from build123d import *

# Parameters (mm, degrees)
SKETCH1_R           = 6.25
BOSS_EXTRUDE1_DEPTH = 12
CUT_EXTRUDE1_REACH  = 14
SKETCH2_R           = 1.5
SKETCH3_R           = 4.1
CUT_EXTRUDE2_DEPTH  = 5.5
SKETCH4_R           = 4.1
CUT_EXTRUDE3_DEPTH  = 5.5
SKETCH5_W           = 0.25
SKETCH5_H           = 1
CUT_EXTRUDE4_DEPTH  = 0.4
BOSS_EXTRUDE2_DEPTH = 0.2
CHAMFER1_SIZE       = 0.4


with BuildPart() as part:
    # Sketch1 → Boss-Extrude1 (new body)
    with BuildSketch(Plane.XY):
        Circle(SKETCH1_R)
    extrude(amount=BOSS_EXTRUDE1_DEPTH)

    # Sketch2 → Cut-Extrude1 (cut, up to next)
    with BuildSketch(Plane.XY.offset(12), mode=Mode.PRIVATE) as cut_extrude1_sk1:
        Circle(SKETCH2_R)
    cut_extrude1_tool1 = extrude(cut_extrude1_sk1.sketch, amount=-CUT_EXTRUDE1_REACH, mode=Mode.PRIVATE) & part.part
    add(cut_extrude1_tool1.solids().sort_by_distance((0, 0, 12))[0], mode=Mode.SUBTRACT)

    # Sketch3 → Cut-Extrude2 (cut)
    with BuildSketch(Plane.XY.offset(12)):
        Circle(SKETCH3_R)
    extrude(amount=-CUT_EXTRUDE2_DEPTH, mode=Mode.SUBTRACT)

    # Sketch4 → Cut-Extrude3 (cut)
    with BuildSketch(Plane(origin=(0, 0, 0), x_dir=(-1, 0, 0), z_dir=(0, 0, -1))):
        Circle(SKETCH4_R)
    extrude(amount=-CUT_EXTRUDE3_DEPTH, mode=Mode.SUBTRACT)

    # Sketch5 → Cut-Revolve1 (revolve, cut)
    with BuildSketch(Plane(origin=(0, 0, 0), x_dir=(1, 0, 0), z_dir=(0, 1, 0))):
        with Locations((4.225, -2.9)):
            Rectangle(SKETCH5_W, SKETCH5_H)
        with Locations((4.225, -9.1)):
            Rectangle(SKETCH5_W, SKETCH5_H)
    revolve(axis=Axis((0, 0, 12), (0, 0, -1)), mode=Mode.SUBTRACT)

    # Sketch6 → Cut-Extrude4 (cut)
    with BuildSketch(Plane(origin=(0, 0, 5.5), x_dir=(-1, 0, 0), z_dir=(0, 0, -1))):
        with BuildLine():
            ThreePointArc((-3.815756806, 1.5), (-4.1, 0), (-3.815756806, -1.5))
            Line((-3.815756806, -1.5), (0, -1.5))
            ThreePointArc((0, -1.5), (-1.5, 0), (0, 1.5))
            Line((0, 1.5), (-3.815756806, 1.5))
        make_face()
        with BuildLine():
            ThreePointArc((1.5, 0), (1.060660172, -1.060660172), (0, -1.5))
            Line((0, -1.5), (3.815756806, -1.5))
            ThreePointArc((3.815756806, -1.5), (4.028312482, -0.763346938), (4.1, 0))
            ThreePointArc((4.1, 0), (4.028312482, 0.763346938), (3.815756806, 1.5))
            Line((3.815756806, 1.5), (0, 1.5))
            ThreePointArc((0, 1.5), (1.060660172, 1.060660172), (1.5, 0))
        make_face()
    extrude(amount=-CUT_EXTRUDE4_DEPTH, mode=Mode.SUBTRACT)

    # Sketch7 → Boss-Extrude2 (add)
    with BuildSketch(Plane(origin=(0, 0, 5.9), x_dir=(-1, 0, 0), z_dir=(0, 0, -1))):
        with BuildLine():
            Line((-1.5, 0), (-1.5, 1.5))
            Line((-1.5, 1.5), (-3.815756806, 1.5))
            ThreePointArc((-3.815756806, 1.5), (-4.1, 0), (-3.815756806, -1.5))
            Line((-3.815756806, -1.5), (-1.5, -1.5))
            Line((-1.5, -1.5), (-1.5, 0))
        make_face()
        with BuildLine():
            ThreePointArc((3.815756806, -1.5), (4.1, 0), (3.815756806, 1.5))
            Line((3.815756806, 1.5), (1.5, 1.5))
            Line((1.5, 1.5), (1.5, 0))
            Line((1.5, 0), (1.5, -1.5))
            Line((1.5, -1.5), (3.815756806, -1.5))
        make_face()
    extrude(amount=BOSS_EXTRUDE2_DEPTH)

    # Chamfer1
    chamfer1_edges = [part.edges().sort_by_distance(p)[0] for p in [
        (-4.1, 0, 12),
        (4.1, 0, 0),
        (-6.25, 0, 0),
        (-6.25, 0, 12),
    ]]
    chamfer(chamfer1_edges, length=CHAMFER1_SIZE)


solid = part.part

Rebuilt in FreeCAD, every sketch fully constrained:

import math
import FreeCAD as App
import Part
import Sketcher
from FreeCAD import Vector
Q = App.Units.Quantity


def edges_at(feature, points):
    """Names of the edges that pass closest to the given points."""
    edges = feature.Shape.Edges
    near = lambda p: min(range(len(edges)), key=lambda i: edges[i].distToShape(Part.Vertex(*p))[0])
    return sorted({f"Edge{near(p) + 1}" for p in points})


def add_polygon(sketch, points):
    """Adds a closed chain of lines whose ends are joined by coincident constraints."""
    first, n = sketch.GeometryCount, len(points)
    for a, b in zip(points, points[1:] + points[:1]):
        sketch.addGeometry(Part.LineSegment(App.Vector(*a, 0), App.Vector(*b, 0)), False)
    for i in range(n):
        sketch.addConstraint(Sketcher.Constraint("Coincident", first + i, 2, first + (i + 1) % n, 1))

doc = App.newDocument("Part")
body = doc.addObject("PartDesign::Body", "Body")

# Sketch on XY plane
sketch1 = body.newObject("Sketcher::SketchObject", "Sketch")
sketch1.AttachmentSupport = (doc.getObject("XY_Plane"), [""])
sketch1.MapMode = "FlatFace"
sketch1.addGeometry(Part.Circle(Vector(0, 0, 0), Vector(0, 0, 1), 6.25), False)
sketch1.addConstraint(Sketcher.Constraint("Coincident", 0, 3, -1, 1))
sketch1.addConstraint(Sketcher.Constraint("Diameter", 0, Q("12.5 mm")))
pad1 = body.newObject("PartDesign::Pad", "Pad")
pad1.Profile = sketch1
pad1.Length = 12

# Sketch on XY plane
sketch2 = body.newObject("Sketcher::SketchObject", "Sketch001")
sketch2.AttachmentSupport = (doc.getObject("XY_Plane"), [""])
sketch2.MapMode = "FlatFace"
sketch2.AttachmentOffset = App.Placement(Vector(0, 0, 12), App.Rotation())
sketch2.addGeometry(Part.Circle(Vector(0, 0, 0), Vector(0, 0, 1), 1.5), False)
sketch2.addConstraint(Sketcher.Constraint("Coincident", 0, 3, -1, 1))
sketch2.addConstraint(Sketcher.Constraint("Diameter", 0, Q("3 mm")))
pocket1 = body.newObject("PartDesign::Pocket", "Pocket")
pocket1.Profile = sketch2
pocket1.Type = "UpToFirst"

# Sketch on XY plane
sketch3 = body.newObject("Sketcher::SketchObject", "Sketch002")
sketch3.AttachmentSupport = (doc.getObject("XY_Plane"), [""])
sketch3.MapMode = "FlatFace"
sketch3.AttachmentOffset = App.Placement(Vector(0, 0, 12), App.Rotation())
sketch3.addGeometry(Part.Circle(Vector(0, 0, 0), Vector(0, 0, 1), 4.1), False)
sketch3.addConstraint(Sketcher.Constraint("Coincident", 0, 3, -1, 1))
sketch3.addConstraint(Sketcher.Constraint("Diameter", 0, Q("8.2 mm")))
pocket2 = body.newObject("PartDesign::Pocket", "Pocket001")
pocket2.Profile = sketch3
pocket2.Length = 5.5

# Sketch on XY plane
sketch4 = body.newObject("Sketcher::SketchObject", "Sketch003")
sketch4.AttachmentSupport = (doc.getObject("XY_Plane"), [""])
sketch4.MapMode = "FlatFace"
sketch4.addGeometry(Part.Circle(Vector(0, 0, 0), Vector(0, 0, 1), 4.1), False)
sketch4.addConstraint(Sketcher.Constraint("Coincident", 0, 3, -1, 1))
sketch4.addConstraint(Sketcher.Constraint("Diameter", 0, Q("8.2 mm")))
pocket3 = body.newObject("PartDesign::Pocket", "Pocket002")
pocket3.Profile = sketch4
pocket3.Length = 5.5
pocket3.Reversed = True

# Sketch on XZ plane
sketch5 = body.newObject("Sketcher::SketchObject", "Sketch004")
sketch5.AttachmentSupport = (doc.getObject("XZ_Plane"), [""])
sketch5.MapMode = "FlatFace"
add_polygon(sketch5, [(4.1, 2.4), (4.1, 3.4), (4.35, 3.4), (4.35, 2.4)])  # lines 0-3
add_polygon(sketch5, [(4.1, 8.6), (4.1, 9.6), (4.35, 9.6), (4.35, 8.6)])  # lines 4-7
sketch5.addConstraint(Sketcher.Constraint("Vertical", 0))
sketch5.addConstraint(Sketcher.Constraint("Horizontal", 1))
sketch5.addConstraint(Sketcher.Constraint("Vertical", 2))
sketch5.addConstraint(Sketcher.Constraint("Horizontal", 3))
sketch5.addConstraint(Sketcher.Constraint("Vertical", 4))
sketch5.addConstraint(Sketcher.Constraint("Horizontal", 5))
sketch5.addConstraint(Sketcher.Constraint("Vertical", 6))
sketch5.addConstraint(Sketcher.Constraint("Horizontal", 7))
sketch5.addConstraint(Sketcher.Constraint("Vertical", 3, 2, 4, 2))
sketch5.addConstraint(Sketcher.Constraint("Vertical", 2, 2, 5, 2))
sketch5.addConstraint(Sketcher.Constraint("Equal", 2, 4))
sketch5.addConstraint(Sketcher.Constraint("DistanceY", 0, 1, 0, 2, Q("1 mm")))
sketch5.addConstraint(Sketcher.Constraint("DistanceX", 1, 1, 1, 2, Q("0.25 mm")))
sketch5.addConstraint(Sketcher.Constraint("DistanceX", -1, 1, 0, 2, Q("4.1 mm")))
sketch5.addConstraint(Sketcher.Constraint("DistanceY", -1, 1, 0, 2, Q("3.4 mm")))
sketch5.addConstraint(Sketcher.Constraint("DistanceY", -1, 1, 4, 2, Q("9.6 mm")))
groove = body.newObject("PartDesign::Groove", "Groove")
groove.Profile = sketch5
groove.ReferenceAxis = (sketch5, ["V_Axis"])
groove.Angle = 360

# Sketch on XY plane
sketch6 = body.newObject("Sketcher::SketchObject", "Sketch005")
sketch6.AttachmentSupport = (doc.getObject("XY_Plane"), [""])
sketch6.MapMode = "FlatFace"
sketch6.AttachmentOffset = App.Placement(Vector(0, 0, 5.5), App.Rotation())
sketch6.addGeometry(Part.ArcOfCircle(Part.Circle(Vector(0, 0, 0), Vector(0, 0, 1), 4.1), math.radians(-21.460128), math.radians(21.460128)), False)
sketch6.addGeometry(Part.LineSegment(Vector(3.815757, -1.5, 0), Vector(0, -1.5, 0)), False)
sketch6.addGeometry(Part.ArcOfCircle(Part.Circle(Vector(0, 0, 0), Vector(0, 0, 1), 1.5), math.radians(-90), math.radians(90)), False)
sketch6.addGeometry(Part.LineSegment(Vector(0, 1.5, 0), Vector(3.815757, 1.5, 0)), False)
sketch6.addGeometry(Part.ArcOfCircle(Part.Circle(Vector(0, 0, 0), Vector(0, 0, 1), 1.5), math.radians(180), math.radians(270)), False)
sketch6.addGeometry(Part.LineSegment(Vector(0, -1.5, 0), Vector(-3.815757, -1.5, 0)), False)
sketch6.addGeometry(Part.ArcOfCircle(Part.Circle(Vector(0, 0, 0), Vector(0, 0, 1), 4.1), math.radians(180), math.radians(201.460128)), False)
sketch6.addGeometry(Part.ArcOfCircle(Part.Circle(Vector(0, 0, 0), Vector(0, 0, 1), 4.1), math.radians(158.539872), math.radians(180)), False)
sketch6.addGeometry(Part.LineSegment(Vector(-3.815757, 1.5, 0), Vector(0, 1.5, 0)), False)
sketch6.addGeometry(Part.ArcOfCircle(Part.Circle(Vector(0, 0, 0), Vector(0, 0, 1), 1.5), math.radians(90), math.radians(180)), False)
sketch6.addConstraint(Sketcher.Constraint("Coincident", 0, 1, 1, 1))
sketch6.addConstraint(Sketcher.Constraint("Tangent", 1, 2, 2, 1))
sketch6.addConstraint(Sketcher.Constraint("Tangent", 2, 2, 3, 1))
sketch6.addConstraint(Sketcher.Constraint("Coincident", 3, 2, 0, 2))
sketch6.addConstraint(Sketcher.Constraint("Tangent", 4, 2, 5, 1))
sketch6.addConstraint(Sketcher.Constraint("Coincident", 5, 2, 6, 2))
sketch6.addConstraint(Sketcher.Constraint("Tangent", 6, 1, 7, 2))
sketch6.addConstraint(Sketcher.Constraint("Coincident", 7, 1, 8, 1))
sketch6.addConstraint(Sketcher.Constraint("Tangent", 8, 2, 9, 1))
sketch6.addConstraint(Sketcher.Constraint("Tangent", 9, 2, 4, 1))
sketch6.addConstraint(Sketcher.Constraint("Horizontal", 1))
sketch6.addConstraint(Sketcher.Constraint("Horizontal", 3))
sketch6.addConstraint(Sketcher.Constraint("Horizontal", 5))
sketch6.addConstraint(Sketcher.Constraint("Horizontal", 8))
sketch6.addConstraint(Sketcher.Constraint("Coincident", 0, 3, -1, 1))
sketch6.addConstraint(Sketcher.Constraint("Coincident", 2, 3, -1, 1))
sketch6.addConstraint(Sketcher.Constraint("Coincident", 4, 3, -1, 1))
sketch6.addConstraint(Sketcher.Constraint("Coincident", 6, 3, -1, 1))
sketch6.addConstraint(Sketcher.Constraint("Coincident", 8, 2, 2, 2))
sketch6.addConstraint(Sketcher.Constraint("Equal", 0, 6))
sketch6.addConstraint(Sketcher.Constraint("Equal", 6, 7))
sketch6.addConstraint(Sketcher.Constraint("PointOnObject", 6, 1, -1))
sketch6.addConstraint(Sketcher.Constraint("PointOnObject", 9, 2, -1))
sketch6.addConstraint(Sketcher.Constraint("Radius", 0, Q("4.1 mm")))
sketch6.addConstraint(Sketcher.Constraint("Radius", 2, Q("1.5 mm")))
pocket4 = body.newObject("PartDesign::Pocket", "Pocket003")
pocket4.Profile = sketch6
pocket4.Length = 0.4
pocket4.Reversed = True

# Sketch on XY plane
sketch7 = body.newObject("Sketcher::SketchObject", "Sketch006")
sketch7.AttachmentSupport = (doc.getObject("XY_Plane"), [""])
sketch7.MapMode = "FlatFace"
sketch7.AttachmentOffset = App.Placement(Vector(0, 0, 5.9), App.Rotation())
sketch7.addGeometry(Part.LineSegment(Vector(1.5, 1.5, 0), Vector(3.815757, 1.5, 0)), False)
sketch7.addGeometry(Part.ArcOfCircle(Part.Circle(Vector(0, 0, 0), Vector(0, 0, 1), 4.1), math.radians(-21.460128), math.radians(21.460128)), False)
sketch7.addGeometry(Part.LineSegment(Vector(3.815757, -1.5, 0), Vector(1.5, -1.5, 0)), False)
sketch7.addGeometry(Part.LineSegment(Vector(1.5, -1.5, 0), Vector(1.5, 1.5, 0)), False)
sketch7.addGeometry(Part.ArcOfCircle(Part.Circle(Vector(0, 0, 0), Vector(0, 0, 1), 4.1), math.radians(158.539872), math.radians(201.460128)), False)
sketch7.addGeometry(Part.LineSegment(Vector(-3.815757, 1.5, 0), Vector(-1.5, 1.5, 0)), False)
sketch7.addGeometry(Part.LineSegment(Vector(-1.5, 1.5, 0), Vector(-1.5, -1.5, 0)), False)
sketch7.addGeometry(Part.LineSegment(Vector(-1.5, -1.5, 0), Vector(-3.815757, -1.5, 0)), False)
sketch7.addConstraint(Sketcher.Constraint("Coincident", 0, 2, 1, 2))
sketch7.addConstraint(Sketcher.Constraint("Coincident", 1, 1, 2, 1))
sketch7.addConstraint(Sketcher.Constraint("Coincident", 2, 2, 3, 1))
sketch7.addConstraint(Sketcher.Constraint("Coincident", 3, 2, 0, 1))
sketch7.addConstraint(Sketcher.Constraint("Coincident", 4, 1, 5, 1))
sketch7.addConstraint(Sketcher.Constraint("Coincident", 5, 2, 6, 1))
sketch7.addConstraint(Sketcher.Constraint("Coincident", 6, 2, 7, 1))
sketch7.addConstraint(Sketcher.Constraint("Coincident", 7, 2, 4, 2))
sketch7.addConstraint(Sketcher.Constraint("Horizontal", 0))
sketch7.addConstraint(Sketcher.Constraint("Horizontal", 2))
sketch7.addConstraint(Sketcher.Constraint("Vertical", 3))
sketch7.addConstraint(Sketcher.Constraint("Horizontal", 5))
sketch7.addConstraint(Sketcher.Constraint("Vertical", 6))
sketch7.addConstraint(Sketcher.Constraint("Horizontal", 7))
sketch7.addConstraint(Sketcher.Constraint("Coincident", 1, 3, -1, 1))
sketch7.addConstraint(Sketcher.Constraint("Coincident", 4, 3, -1, 1))
sketch7.addConstraint(Sketcher.Constraint("Equal", 1, 4))
sketch7.addConstraint(Sketcher.Constraint("Symmetric", 2, 2, 5, 2, -1, 1))
sketch7.addConstraint(Sketcher.Constraint("Horizontal", 3, 2, 4, 1))
sketch7.addConstraint(Sketcher.Constraint("Horizontal", 2, 2, 6, 2))
sketch7.addConstraint(Sketcher.Constraint("Radius", 1, Q("4.1 mm")))
sketch7.addConstraint(Sketcher.Constraint("DistanceY", 3, 1, 3, 2, Q("3 mm")))
sketch7.addConstraint(Sketcher.Constraint("DistanceX", 5, 2, 3, 2, Q("3 mm")))
pad2 = body.newObject("PartDesign::Pad", "Pad001")
pad2.Profile = sketch7
pad2.Length = 0.2
pad2.Reversed = True
doc.recompute()

chamfer = body.newObject("PartDesign::Chamfer", "Chamfer")
chamfer.Base = (pad2, edges_at(pad2, [
    (-4.1, 0, 12),
    (4.1, 0, 0),
    (-6.25, 0, 0),
    (-6.25, 0, 12),
]))
chamfer.Size = 0.4

doc.recompute()
